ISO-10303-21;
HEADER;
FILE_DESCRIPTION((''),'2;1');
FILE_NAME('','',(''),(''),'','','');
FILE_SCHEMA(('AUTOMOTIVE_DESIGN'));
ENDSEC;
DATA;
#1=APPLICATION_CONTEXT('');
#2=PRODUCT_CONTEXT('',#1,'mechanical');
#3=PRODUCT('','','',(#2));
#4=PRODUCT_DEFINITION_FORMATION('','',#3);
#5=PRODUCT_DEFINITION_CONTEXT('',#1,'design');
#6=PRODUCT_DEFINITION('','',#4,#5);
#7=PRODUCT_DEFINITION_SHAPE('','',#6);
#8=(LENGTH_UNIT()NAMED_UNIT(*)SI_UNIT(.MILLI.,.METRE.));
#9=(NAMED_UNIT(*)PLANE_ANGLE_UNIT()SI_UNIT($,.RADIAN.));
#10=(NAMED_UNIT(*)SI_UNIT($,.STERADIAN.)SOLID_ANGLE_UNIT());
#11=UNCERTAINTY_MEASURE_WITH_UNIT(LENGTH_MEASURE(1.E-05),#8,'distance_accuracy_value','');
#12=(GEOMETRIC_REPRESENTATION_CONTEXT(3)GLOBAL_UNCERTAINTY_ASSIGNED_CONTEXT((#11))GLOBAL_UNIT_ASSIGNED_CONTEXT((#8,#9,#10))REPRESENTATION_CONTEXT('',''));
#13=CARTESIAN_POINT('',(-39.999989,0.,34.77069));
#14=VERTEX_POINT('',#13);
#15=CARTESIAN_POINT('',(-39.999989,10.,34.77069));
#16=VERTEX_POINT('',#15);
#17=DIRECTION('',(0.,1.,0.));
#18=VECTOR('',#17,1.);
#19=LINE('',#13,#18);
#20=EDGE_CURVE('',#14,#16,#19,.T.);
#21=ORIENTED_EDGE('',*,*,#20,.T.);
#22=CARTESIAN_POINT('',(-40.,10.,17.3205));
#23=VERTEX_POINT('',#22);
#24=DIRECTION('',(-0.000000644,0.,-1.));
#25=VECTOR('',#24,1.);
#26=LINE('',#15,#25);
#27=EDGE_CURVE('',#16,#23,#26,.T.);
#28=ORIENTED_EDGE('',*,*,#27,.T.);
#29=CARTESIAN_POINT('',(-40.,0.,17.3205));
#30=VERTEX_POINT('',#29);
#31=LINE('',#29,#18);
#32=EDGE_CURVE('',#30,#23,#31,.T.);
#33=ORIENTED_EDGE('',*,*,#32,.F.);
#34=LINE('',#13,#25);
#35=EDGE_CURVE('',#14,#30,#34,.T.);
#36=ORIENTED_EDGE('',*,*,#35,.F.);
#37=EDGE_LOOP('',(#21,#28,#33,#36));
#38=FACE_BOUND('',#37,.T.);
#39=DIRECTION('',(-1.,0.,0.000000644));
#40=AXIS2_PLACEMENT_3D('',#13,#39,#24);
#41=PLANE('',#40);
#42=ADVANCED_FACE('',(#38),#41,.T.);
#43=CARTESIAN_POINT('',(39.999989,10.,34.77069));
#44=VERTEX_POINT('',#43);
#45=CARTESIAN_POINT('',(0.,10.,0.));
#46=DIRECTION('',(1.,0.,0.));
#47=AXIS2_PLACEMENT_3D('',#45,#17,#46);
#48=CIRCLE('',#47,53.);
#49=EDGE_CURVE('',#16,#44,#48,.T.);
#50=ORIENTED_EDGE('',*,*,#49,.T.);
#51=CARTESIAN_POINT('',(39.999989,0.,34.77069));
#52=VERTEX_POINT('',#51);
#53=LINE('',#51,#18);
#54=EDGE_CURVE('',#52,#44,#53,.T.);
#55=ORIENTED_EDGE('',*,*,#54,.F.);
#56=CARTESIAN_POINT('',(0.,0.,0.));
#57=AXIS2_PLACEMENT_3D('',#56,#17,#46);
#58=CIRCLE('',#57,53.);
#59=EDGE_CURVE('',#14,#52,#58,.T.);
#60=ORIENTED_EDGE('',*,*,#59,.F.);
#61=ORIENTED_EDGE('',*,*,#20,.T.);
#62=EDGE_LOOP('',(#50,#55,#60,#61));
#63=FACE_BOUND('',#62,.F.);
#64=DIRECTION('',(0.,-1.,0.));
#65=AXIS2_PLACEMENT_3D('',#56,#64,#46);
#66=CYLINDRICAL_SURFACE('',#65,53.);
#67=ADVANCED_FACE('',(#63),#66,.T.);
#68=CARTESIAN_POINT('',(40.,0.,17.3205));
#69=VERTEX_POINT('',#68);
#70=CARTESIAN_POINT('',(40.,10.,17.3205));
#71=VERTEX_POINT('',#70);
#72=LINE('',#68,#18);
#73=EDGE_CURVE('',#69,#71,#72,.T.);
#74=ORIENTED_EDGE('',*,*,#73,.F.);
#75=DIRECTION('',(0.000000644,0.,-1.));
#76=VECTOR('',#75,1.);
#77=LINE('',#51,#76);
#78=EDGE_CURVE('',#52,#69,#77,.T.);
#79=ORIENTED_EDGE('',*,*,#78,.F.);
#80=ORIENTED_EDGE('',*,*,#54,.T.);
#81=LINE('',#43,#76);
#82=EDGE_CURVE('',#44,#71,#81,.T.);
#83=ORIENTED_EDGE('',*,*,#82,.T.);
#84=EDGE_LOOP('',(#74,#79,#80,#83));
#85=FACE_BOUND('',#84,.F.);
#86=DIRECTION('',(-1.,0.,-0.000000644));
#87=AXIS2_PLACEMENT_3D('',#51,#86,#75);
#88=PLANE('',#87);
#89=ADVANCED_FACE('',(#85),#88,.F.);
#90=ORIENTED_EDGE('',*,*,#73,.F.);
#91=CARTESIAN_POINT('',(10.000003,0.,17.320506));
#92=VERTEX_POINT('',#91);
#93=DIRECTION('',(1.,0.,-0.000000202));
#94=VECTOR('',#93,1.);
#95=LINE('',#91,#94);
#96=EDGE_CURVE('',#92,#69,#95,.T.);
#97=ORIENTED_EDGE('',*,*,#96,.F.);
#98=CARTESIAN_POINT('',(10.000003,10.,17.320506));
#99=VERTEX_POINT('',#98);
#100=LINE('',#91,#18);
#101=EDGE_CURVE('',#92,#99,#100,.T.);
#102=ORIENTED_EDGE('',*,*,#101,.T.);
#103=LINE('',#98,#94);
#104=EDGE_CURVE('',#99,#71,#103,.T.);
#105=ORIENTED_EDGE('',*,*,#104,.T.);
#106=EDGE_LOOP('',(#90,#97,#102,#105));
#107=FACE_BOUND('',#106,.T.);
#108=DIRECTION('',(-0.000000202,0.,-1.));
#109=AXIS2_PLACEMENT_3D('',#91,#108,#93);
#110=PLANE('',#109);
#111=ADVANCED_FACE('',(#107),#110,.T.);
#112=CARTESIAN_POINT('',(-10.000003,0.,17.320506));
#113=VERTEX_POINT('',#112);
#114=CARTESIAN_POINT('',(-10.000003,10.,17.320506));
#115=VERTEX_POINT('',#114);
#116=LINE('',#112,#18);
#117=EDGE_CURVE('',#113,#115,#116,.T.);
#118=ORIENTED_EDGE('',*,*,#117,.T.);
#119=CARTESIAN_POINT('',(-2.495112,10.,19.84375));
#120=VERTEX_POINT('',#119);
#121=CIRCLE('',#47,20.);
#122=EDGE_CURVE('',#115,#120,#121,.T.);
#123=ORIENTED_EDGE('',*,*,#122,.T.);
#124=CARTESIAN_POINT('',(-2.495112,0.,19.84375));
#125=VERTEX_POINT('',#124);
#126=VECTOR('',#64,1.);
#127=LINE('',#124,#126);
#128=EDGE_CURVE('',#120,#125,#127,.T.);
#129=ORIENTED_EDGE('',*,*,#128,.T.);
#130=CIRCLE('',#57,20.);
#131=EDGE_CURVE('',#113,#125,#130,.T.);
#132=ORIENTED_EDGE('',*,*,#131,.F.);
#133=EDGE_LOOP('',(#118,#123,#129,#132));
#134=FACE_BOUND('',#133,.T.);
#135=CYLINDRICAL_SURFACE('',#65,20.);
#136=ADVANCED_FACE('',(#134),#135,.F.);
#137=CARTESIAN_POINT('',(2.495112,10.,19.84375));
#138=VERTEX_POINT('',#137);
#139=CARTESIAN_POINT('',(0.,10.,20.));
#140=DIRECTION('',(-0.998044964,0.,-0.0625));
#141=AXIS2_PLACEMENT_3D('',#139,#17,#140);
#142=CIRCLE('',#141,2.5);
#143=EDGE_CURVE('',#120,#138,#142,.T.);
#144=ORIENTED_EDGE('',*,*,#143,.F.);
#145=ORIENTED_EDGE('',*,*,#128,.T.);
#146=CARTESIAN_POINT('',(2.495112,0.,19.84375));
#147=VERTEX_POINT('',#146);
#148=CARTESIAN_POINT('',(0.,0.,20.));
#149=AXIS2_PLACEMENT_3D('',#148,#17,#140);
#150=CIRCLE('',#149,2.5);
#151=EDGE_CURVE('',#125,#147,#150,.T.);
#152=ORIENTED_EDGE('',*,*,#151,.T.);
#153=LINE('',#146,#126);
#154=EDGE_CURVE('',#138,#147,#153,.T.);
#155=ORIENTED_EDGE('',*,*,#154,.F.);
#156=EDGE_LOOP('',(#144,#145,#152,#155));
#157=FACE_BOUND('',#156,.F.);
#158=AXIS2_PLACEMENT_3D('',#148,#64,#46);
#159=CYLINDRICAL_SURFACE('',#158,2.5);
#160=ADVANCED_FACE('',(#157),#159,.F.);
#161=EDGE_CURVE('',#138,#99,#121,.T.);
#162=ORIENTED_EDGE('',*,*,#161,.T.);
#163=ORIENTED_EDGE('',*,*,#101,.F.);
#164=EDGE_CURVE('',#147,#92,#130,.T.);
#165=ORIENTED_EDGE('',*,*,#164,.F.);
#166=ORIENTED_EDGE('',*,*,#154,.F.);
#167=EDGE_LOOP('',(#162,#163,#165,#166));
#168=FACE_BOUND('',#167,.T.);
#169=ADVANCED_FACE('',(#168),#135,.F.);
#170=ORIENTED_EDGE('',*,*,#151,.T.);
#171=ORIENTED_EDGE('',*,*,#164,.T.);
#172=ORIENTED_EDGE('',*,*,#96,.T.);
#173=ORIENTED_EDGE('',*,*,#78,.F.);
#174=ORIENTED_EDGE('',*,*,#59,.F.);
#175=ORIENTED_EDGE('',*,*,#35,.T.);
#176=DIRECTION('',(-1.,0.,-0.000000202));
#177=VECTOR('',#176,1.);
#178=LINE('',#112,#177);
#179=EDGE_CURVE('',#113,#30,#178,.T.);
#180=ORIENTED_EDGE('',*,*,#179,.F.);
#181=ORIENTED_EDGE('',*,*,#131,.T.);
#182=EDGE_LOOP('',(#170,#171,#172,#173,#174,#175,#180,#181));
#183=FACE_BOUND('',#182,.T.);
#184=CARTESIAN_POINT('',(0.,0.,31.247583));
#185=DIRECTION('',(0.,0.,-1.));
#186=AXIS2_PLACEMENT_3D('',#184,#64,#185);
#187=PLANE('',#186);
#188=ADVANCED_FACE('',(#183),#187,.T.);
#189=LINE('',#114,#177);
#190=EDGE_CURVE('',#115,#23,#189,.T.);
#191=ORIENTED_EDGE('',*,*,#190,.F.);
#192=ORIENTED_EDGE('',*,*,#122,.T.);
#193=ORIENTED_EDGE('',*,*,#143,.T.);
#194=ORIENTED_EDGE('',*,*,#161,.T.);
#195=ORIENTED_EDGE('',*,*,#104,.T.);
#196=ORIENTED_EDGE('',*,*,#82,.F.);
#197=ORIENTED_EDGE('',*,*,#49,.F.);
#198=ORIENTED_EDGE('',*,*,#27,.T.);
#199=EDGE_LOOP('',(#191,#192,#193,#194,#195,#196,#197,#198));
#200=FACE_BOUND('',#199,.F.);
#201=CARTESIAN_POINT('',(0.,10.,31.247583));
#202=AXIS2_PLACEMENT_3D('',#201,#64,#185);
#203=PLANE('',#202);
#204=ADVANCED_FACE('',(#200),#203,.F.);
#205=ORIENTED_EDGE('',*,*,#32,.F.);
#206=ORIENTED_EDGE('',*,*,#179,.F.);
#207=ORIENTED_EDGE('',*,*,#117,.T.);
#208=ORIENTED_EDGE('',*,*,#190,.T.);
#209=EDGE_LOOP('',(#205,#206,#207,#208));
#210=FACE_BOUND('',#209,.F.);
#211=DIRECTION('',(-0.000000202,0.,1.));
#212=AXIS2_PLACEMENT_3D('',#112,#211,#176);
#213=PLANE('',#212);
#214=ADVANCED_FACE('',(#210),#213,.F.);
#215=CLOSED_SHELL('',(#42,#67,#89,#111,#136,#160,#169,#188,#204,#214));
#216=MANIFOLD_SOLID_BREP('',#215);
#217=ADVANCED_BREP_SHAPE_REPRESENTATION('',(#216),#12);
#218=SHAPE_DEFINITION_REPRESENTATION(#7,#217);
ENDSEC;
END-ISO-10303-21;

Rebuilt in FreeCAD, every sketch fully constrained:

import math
import FreeCAD as App
import Part
import Sketcher

V = App.Vector

doc = App.newDocument("Part")
body = doc.addObject("PartDesign::Body", "Body")

sketch1 = body.newObject("Sketcher::SketchObject", "Sketch")
sketch1.AttachmentSupport = (doc.getObject("XZ_Plane"), [""])
sketch1.MapMode = "FlatFace"
sketch1.addGeometry([
    Part.LineSegment(V(-40, 17, 0), V(-10, 17, 0)),
    Part.ArcOfCircle(Part.Circle(V(0, 0, 0), V(0, 0, 1), 20), math.radians(60), math.radians(120)),
    Part.LineSegment(V(10, 17, 0), V(40, 17, 0)),
    Part.LineSegment(V(40, 17, 0), V(40, 35, 0)),
    Part.ArcOfCircle(Part.Circle(V(0, 0, 0), V(0, 0, 1), 53), math.radians(41), math.radians(139)),
    Part.LineSegment(V(-40, 35, 0), V(-40, 17, 0)),
], False)
sketch1.addConstraint([
    Sketcher.Constraint("Coincident", 0, 2, 1, 2),
    Sketcher.Constraint("Coincident", 1, 1, 2, 1),
    Sketcher.Constraint("Coincident", 2, 2, 3, 1),
    Sketcher.Constraint("Coincident", 3, 2, 4, 1),
    Sketcher.Constraint("Coincident", 4, 2, 5, 1),
    Sketcher.Constraint("Coincident", 5, 2, 0, 1),
    Sketcher.Constraint("Horizontal", 0),
    Sketcher.Constraint("Horizontal", 2),
    Sketcher.Constraint("Vertical", 3),
    Sketcher.Constraint("Vertical", 5),
    Sketcher.Constraint("Coincident", 1, 3, -1, 1),
    Sketcher.Constraint("Coincident", 4, 3, -1, 1),
    Sketcher.Constraint("Symmetric", 2, 2, 5, 2, -2),
    Sketcher.Constraint("DistanceX", 0, 2, -1, 1, 10.0),
    Sketcher.Constraint("Radius", 1, 20.0),
    Sketcher.Constraint("Radius", 4, 53.0),
    Sketcher.Constraint("DistanceX", 0, 1, 0, 2, 30.0),
])
pad1 = body.newObject("PartDesign::Pad", "Pad")
pad1.Profile = sketch1
pad1.Length = 10
pad1.Reversed = True

sketch2 = body.newObject("Sketcher::SketchObject", "Sketch001")
sketch2.AttachmentSupport = (doc.getObject("XZ_Plane"), [""])
sketch2.MapMode = "FlatFace"
sketch2.addGeometry(Part.Circle(V(0, 20, 0), V(0, 0, 1), 2.5), False)
sketch2.addConstraint([
    Sketcher.Constraint("PointOnObject", 0, 3, -2),
    Sketcher.Constraint("Diameter", 0, 5.0),
    Sketcher.Constraint("DistanceY", -1, 1, 0, 3, 20.0),
])
pocket1 = body.newObject("PartDesign::Pocket", "Pocket")
pocket1.Profile = sketch2
pocket1.Type = "ThroughAll"

doc.recompute()
